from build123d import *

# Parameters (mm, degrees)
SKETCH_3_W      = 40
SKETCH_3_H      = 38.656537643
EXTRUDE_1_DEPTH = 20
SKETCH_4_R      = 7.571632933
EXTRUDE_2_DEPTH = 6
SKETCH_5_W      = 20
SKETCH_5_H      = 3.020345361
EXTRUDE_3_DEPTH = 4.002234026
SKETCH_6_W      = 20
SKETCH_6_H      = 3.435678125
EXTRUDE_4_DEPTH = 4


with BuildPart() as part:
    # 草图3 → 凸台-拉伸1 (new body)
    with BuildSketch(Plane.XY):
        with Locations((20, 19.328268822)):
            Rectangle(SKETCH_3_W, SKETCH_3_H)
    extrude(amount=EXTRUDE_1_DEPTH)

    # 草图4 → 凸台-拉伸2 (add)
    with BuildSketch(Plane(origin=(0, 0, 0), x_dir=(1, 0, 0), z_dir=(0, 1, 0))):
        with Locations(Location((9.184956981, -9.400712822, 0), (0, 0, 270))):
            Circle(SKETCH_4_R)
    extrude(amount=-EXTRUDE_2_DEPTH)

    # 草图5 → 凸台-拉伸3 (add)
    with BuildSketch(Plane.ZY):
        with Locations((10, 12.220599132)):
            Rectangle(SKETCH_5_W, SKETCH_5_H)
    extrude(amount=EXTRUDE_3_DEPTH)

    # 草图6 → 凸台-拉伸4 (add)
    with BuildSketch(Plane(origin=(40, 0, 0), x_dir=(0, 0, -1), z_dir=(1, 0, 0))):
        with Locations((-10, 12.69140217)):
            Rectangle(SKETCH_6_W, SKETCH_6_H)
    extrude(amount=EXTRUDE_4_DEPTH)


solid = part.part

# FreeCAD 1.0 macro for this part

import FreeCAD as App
import Part
import Sketcher


def add_polygon(sketch, points):
    """Adds a closed chain of lines whose ends are joined by coincident constraints."""
    first, n = sketch.GeometryCount, len(points)
    for a, b in zip(points, points[1:] + points[:1]):
        sketch.addGeometry(Part.LineSegment(App.Vector(*a, 0), App.Vector(*b, 0)), False)
    for i in range(n):
        sketch.addConstraint(Sketcher.Constraint("Coincident", first + i, 2, first + (i + 1) % n, 1))

doc = App.newDocument("Part")
params = doc.addObject("Spreadsheet::Sheet", "Params")
for row, (alias, value) in enumerate([
    ("sketch1_width", "40 mm"),
    ("pad1_length", "20 mm"),
    ("pad2_length", "6 mm"),
    ("sketch3_height", "20 mm"),
    ("pad3_length", "4.002234 mm"),
    ("sketch4_height", "20 mm"),
    ("pad4_length", "4 mm"),
], start=1):
    params.set(f"A{row}", alias)
    params.set(f"B{row}", "=" + value)
    params.setAlias(f"B{row}", alias)

body = doc.addObject("PartDesign::Body", "Body")

# Sketch on XY plane
sketch1 = doc.addObject("Sketcher::SketchObject", "Sketch")
body.addObject(sketch1)
sketch1.AttachmentSupport = (doc.XY_Plane, [""])
sketch1.MapMode = "FlatFace"
add_polygon(sketch1, [(0, 39), (0, 0), (40, 0), (40, 39)])  # lines 0-3
sketch1.addConstraint([
    Sketcher.Constraint("Vertical", 0),
    Sketcher.Constraint("Horizontal", 1),
    Sketcher.Constraint("Vertical", 2),
    Sketcher.Constraint("Horizontal", 3),
    Sketcher.Constraint("Coincident", 0, 2, -1, 1),
    Sketcher.Constraint("DistanceX", 1, 1, 1, 2, 40.0),
    Sketcher.Constraint("DistanceY", 0, 2, 0, 1, 38.656538),
])
sketch1.setExpression("Constraints[9]", "Params.sketch1_width")
pad1 = doc.addObject("PartDesign::Pad", "Pad")
body.addObject(pad1)
pad1.Profile = sketch1
pad1.setExpression("Length", "Params.pad1_length")

# Sketch on XZ plane
sketch2 = doc.addObject("Sketcher::SketchObject", "Sketch001")
body.addObject(sketch2)
sketch2.AttachmentSupport = (doc.XZ_Plane, [""])
sketch2.MapMode = "FlatFace"
sketch2.addGeometry(Part.Circle(App.Vector(9, 9, 0), App.Vector(0, 0, 1), 8), False)
sketch2.addConstraint([
    Sketcher.Constraint("Diameter", 0, 15.143266),
    Sketcher.Constraint("DistanceX", -1, 1, 0, 3, 9.184957),
    Sketcher.Constraint("DistanceY", -1, 1, 0, 3, 9.400713),
])
pad2 = doc.addObject("PartDesign::Pad", "Pad001")
body.addObject(pad2)
pad2.Profile = sketch2
pad2.setExpression("Length", "Params.pad2_length")

# Sketch on YZ plane
sketch3 = doc.addObject("Sketcher::SketchObject", "Sketch002")
body.addObject(sketch3)
sketch3.AttachmentSupport = (doc.YZ_Plane, [""])
sketch3.MapMode = "FlatFace"
add_polygon(sketch3, [(13.7, 0), (10.7, 0), (10.7, 20), (13.7, 20)])  # lines 0-3
sketch3.addConstraint([
    Sketcher.Constraint("Horizontal", 0),
    Sketcher.Constraint("Vertical", 1),
    Sketcher.Constraint("Horizontal", 2),
    Sketcher.Constraint("Vertical", 3),
    Sketcher.Constraint("PointOnObject", 0, 2, -1),
    Sketcher.Constraint("DistanceY", 1, 1, 1, 2, 20.0),
    Sketcher.Constraint("DistanceX", 0, 2, 0, 1, 3.020345),
    Sketcher.Constraint("DistanceX", -1, 1, 2, 2, 13.730772),
])
sketch3.setExpression("Constraints[9]", "Params.sketch3_height")
pad3 = doc.addObject("PartDesign::Pad", "Pad002")
body.addObject(pad3)
pad3.Profile = sketch3
pad3.setExpression("Length", "Params.pad3_length")
pad3.Reversed = True

# Sketch on YZ plane
sketch4 = doc.addObject("Sketcher::SketchObject", "Sketch003")
body.addObject(sketch4)
sketch4.AttachmentSupport = (doc.YZ_Plane, [""])
sketch4.MapMode = "FlatFace"
sketch4.AttachmentOffset = App.Placement(App.Vector(0, 0, 40), App.Rotation())
add_polygon(sketch4, [(14.4, 20), (11, 20), (11, 0), (14.4, 0)])  # lines 0-3
sketch4.addConstraint([
    Sketcher.Constraint("Horizontal", 0),
    Sketcher.Constraint("Vertical", 1),
    Sketcher.Constraint("Horizontal", 2),
    Sketcher.Constraint("Vertical", 3),
    Sketcher.Constraint("PointOnObject", 1, 2, -1),
    Sketcher.Constraint("DistanceY", 1, 2, 1, 1, 20.0),
    Sketcher.Constraint("DistanceX", 0, 2, 0, 1, 3.435678),
    Sketcher.Constraint("DistanceX", -1, 1, 2, 2, 14.409241),
])
sketch4.setExpression("Constraints[9]", "Params.sketch4_height")
pad4 = doc.addObject("PartDesign::Pad", "Pad003")
body.addObject(pad4)
pad4.Profile = sketch4
pad4.setExpression("Length", "Params.pad4_length")

doc.recompute()
